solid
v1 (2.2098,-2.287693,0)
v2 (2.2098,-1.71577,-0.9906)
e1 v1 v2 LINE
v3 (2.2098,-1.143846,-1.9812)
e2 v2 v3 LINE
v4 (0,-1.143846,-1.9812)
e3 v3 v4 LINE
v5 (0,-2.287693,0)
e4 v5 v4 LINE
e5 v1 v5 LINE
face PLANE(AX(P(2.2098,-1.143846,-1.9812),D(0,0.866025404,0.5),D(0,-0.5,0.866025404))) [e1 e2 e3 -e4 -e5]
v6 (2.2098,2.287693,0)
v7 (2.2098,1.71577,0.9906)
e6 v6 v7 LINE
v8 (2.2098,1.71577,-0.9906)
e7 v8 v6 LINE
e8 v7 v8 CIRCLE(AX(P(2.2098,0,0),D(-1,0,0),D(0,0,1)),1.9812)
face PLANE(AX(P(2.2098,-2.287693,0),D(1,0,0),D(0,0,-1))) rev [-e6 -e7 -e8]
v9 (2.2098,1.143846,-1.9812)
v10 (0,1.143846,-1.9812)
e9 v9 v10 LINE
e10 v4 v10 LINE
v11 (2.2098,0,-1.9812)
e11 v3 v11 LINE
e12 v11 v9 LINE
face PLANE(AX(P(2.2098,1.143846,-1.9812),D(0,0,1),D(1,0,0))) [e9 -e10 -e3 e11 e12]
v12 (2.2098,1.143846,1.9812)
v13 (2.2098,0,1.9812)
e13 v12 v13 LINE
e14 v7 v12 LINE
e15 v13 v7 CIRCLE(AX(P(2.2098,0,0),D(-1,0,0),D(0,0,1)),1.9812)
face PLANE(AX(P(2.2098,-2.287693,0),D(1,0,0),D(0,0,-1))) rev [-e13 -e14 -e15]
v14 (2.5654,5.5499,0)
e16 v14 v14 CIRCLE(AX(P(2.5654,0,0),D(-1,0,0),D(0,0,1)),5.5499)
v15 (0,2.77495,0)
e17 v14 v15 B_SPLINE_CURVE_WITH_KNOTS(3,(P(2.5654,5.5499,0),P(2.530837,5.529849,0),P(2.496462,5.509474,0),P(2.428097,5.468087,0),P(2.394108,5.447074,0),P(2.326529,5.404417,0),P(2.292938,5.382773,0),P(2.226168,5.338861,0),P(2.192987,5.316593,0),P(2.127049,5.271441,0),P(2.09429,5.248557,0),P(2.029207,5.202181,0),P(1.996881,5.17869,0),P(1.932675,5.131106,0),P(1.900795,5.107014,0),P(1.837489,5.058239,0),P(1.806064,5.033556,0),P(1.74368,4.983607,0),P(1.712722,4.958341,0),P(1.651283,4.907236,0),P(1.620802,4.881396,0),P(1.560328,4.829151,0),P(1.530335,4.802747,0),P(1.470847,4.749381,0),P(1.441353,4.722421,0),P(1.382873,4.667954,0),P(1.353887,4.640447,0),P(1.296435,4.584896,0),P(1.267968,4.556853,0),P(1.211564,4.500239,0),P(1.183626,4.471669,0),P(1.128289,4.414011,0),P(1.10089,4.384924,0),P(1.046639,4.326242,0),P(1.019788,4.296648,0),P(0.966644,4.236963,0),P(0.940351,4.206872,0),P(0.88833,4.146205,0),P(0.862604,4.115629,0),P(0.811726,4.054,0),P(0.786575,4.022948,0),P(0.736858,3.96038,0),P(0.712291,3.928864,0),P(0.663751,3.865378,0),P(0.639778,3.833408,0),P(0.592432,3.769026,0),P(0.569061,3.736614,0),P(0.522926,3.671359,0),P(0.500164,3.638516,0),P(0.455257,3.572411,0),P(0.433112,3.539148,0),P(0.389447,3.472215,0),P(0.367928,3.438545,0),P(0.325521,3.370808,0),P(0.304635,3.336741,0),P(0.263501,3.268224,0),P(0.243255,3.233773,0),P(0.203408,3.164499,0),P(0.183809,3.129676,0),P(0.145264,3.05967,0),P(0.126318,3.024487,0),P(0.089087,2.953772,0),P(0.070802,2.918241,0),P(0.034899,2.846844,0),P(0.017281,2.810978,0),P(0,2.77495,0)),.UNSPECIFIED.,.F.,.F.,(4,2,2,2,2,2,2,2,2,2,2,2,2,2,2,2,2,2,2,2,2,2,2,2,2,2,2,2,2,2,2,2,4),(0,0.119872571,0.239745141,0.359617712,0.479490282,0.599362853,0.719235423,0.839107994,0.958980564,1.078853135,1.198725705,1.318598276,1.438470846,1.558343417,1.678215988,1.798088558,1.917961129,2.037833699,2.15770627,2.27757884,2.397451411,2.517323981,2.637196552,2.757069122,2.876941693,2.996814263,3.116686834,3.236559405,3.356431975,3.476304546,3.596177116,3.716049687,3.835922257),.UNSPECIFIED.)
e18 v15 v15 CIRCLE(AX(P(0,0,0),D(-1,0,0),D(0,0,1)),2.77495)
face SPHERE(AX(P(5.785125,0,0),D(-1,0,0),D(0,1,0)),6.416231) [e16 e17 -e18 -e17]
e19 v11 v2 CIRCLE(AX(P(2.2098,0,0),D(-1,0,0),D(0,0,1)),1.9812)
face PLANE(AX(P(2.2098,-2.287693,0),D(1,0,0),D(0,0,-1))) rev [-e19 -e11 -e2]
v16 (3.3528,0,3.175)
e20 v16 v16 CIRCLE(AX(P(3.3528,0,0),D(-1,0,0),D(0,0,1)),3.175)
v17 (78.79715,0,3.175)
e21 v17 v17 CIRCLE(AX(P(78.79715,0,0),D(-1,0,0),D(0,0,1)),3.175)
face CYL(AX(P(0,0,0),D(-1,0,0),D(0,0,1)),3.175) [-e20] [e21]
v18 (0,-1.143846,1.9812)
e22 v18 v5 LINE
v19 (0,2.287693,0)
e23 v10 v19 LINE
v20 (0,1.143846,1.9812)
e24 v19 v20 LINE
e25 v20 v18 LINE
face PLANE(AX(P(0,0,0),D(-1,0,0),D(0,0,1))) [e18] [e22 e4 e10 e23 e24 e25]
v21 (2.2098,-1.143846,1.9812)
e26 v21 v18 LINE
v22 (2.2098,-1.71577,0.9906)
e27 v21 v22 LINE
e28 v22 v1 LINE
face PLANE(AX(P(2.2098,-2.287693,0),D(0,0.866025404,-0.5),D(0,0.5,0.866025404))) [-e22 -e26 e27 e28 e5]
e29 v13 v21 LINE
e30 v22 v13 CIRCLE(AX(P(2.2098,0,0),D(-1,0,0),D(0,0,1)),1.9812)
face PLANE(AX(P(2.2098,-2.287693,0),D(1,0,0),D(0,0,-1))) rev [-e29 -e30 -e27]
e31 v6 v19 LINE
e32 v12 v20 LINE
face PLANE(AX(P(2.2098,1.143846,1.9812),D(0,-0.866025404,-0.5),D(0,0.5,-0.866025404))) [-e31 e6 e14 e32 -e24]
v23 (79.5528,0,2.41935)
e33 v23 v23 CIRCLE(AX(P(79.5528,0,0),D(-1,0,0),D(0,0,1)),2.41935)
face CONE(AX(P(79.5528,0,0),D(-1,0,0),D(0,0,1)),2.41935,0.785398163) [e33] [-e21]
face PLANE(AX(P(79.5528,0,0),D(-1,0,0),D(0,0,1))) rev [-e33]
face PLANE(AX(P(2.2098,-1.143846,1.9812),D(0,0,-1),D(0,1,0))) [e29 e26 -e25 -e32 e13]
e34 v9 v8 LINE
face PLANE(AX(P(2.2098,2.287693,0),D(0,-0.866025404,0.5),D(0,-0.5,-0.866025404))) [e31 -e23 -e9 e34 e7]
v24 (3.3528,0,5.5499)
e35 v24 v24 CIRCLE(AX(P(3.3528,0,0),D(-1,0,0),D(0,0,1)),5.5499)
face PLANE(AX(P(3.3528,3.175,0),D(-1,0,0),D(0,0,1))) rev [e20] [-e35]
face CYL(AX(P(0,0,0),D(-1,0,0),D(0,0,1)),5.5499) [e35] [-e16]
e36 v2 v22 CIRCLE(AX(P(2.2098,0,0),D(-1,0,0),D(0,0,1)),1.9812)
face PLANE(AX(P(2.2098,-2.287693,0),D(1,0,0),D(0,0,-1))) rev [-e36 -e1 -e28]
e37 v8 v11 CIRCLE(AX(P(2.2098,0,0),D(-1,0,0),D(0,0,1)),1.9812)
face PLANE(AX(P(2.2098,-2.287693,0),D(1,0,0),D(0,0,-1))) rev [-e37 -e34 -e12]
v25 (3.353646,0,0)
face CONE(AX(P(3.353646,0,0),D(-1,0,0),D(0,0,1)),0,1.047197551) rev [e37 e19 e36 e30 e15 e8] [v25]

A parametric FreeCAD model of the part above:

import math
import FreeCAD as App
import Part
import Sketcher
Q = App.Units.Quantity

doc = App.newDocument("Part")
body = doc.addObject("PartDesign::Body", "Body")

# Sketch on XY plane
sketch1 = doc.addObject("Sketcher::SketchObject", "Sketch")
body.addObject(sketch1)
sketch1.AttachmentSupport = (doc.XY_Plane, [""])
sketch1.MapMode = "FlatFace"
sketch1.addGeometry([
    Part.LineSegment(App.Vector(79.6, 0, 0), App.Vector(79.6, 2.4, 0)),  # 0
    Part.LineSegment(App.Vector(79.6, 2.4, 0), App.Vector(78.8, 3.2, 0)),  # 1
    Part.LineSegment(App.Vector(78.8, 3.2, 0), App.Vector(3.4, 3.2, 0)),  # 2
    Part.LineSegment(App.Vector(3.4, 3.2, 0), App.Vector(3.4, 5.5, 0)),  # 3
    Part.LineSegment(App.Vector(3.4, 5.5, 0), App.Vector(2.6, 5.5, 0)),  # 4
    Part.ArcOfCircle(Part.Circle(App.Vector(5.8, 0, 0), App.Vector(0, 0, 1), 6.4), math.radians(120), math.radians(154)),  # 5
    Part.LineSegment(App.Vector(0, 2.8, 0), App.Vector(0, 0, 0)),  # 6
    Part.LineSegment(App.Vector(0, 0, 0), App.Vector(79.6, 0, 0)),  # 7
], False)
sketch1.addConstraint([
    Sketcher.Constraint("Coincident", 0, 2, 1, 1),
    Sketcher.Constraint("Coincident", 1, 2, 2, 1),
    Sketcher.Constraint("Coincident", 2, 2, 3, 1),
    Sketcher.Constraint("Coincident", 3, 2, 4, 1),
    Sketcher.Constraint("Coincident", 4, 2, 5, 1),
    Sketcher.Constraint("Coincident", 5, 2, 6, 1),
    Sketcher.Constraint("Coincident", 6, 2, 7, 1),
    Sketcher.Constraint("Coincident", 7, 2, 0, 1),
    Sketcher.Constraint("Vertical", 0),
    Sketcher.Constraint("Horizontal", 2),
    Sketcher.Constraint("Vertical", 3),
    Sketcher.Constraint("Horizontal", 4),
    Sketcher.Constraint("Vertical", 6),
    Sketcher.Constraint("Horizontal", 7),
    Sketcher.Constraint("Coincident", 6, 2, -1, 1),
    Sketcher.Constraint("PointOnObject", 5, 3, -1),
    Sketcher.Constraint("Angle", 1, Q("135 deg")),
    Sketcher.Constraint("DistanceX", 2, 2, 0, 2, Q("3 in")),
    Sketcher.Constraint("DistanceX", 4, 2, 4, 1, Q("0.031 in")),
    Sketcher.Constraint("DistanceX", 7, 1, 7, 2, Q("3.132 in")),
    Sketcher.Constraint("DistanceY", 3, 1, 3, 2, Q("0.0935 in")),
    Sketcher.Constraint("DistanceY", -1, 1, 1, 2, Q("0.125 in")),
    Sketcher.Constraint("Radius", 5, Q("6.416231 mm")),
    Sketcher.Constraint("DistanceX", 2, 2, 2, 1, Q("75.44435 mm")),
])
revolution = doc.addObject("PartDesign::Revolution", "Revolution")
body.addObject(revolution)
revolution.Profile = sketch1
revolution.ReferenceAxis = (sketch1, ["H_Axis"])
revolution.Angle = 360

# Sketch on XY plane
sketch2 = doc.addObject("Sketcher::SketchObject", "Sketch001")
body.addObject(sketch2)
sketch2.AttachmentSupport = (doc.XY_Plane, [""])
sketch2.MapMode = "FlatFace"
sketch2.addGeometry([
    Part.LineSegment(App.Vector(2.2, 2, 0), App.Vector(0, 2, 0)),
    Part.LineSegment(App.Vector(0, 2, 0), App.Vector(0, 0, 0)),
    Part.LineSegment(App.Vector(0, 0, 0), App.Vector(3.4, 0, 0)),
    Part.LineSegment(App.Vector(3.4, 0, 0), App.Vector(2.2, 2, 0)),
], False)
sketch2.addConstraint([
    Sketcher.Constraint("Coincident", 0, 2, 1, 1),
    Sketcher.Constraint("Coincident", 1, 2, 2, 1),
    Sketcher.Constraint("Coincident", 2, 2, 3, 1),
    Sketcher.Constraint("Coincident", 3, 2, 0, 1),
    Sketcher.Constraint("Horizontal", 0),
    Sketcher.Constraint("Vertical", 1),
    Sketcher.Constraint("Horizontal", 2),
    Sketcher.Constraint("Coincident", 1, 2, -1, 1),
    Sketcher.Constraint("Angle", 3, Q("120 deg")),
    Sketcher.Constraint("DistanceX", 0, 2, 0, 1, Q("0.087 in")),
    Sketcher.Constraint("DistanceY", 1, 2, 1, 1, Q("0.078 in")),
])
groove = doc.addObject("PartDesign::Groove", "Groove")
body.addObject(groove)
groove.Profile = sketch2
groove.ReferenceAxis = (sketch2, ["H_Axis"])
groove.Angle = 360

# Sketch on YZ plane
sketch3 = doc.addObject("Sketcher::SketchObject", "Sketch002")
body.addObject(sketch3)
sketch3.AttachmentSupport = (doc.YZ_Plane, [""])
sketch3.MapMode = "FlatFace"
sketch3.addGeometry([
    Part.LineSegment(App.Vector(1.1, 2, 0), App.Vector(-1.1, 2, 0)),  # 0
    Part.LineSegment(App.Vector(-1.1, 2, 0), App.Vector(-2.3, 0, 0)),  # 1
    Part.LineSegment(App.Vector(-2.3, 0, 0), App.Vector(-1.1, -2, 0)),  # 2
    Part.LineSegment(App.Vector(-1.1, -2, 0), App.Vector(1.1, -2, 0)),  # 3
    Part.LineSegment(App.Vector(1.1, -2, 0), App.Vector(2.3, 0, 0)),  # 4
    Part.LineSegment(App.Vector(2.3, 0, 0), App.Vector(1.1, 2, 0)),  # 5
], False)
sketch3.addConstraint([
    Sketcher.Constraint("Coincident", 0, 2, 1, 1),
    Sketcher.Constraint("Coincident", 1, 2, 2, 1),
    Sketcher.Constraint("Coincident", 2, 2, 3, 1),
    Sketcher.Constraint("Coincident", 3, 2, 4, 1),
    Sketcher.Constraint("Coincident", 4, 2, 5, 1),
    Sketcher.Constraint("Coincident", 5, 2, 0, 1),
    Sketcher.Constraint("Horizontal", 0),
    Sketcher.Constraint("Horizontal", 3),
    Sketcher.Constraint("Symmetric", 0, 2, 3, 2, -1, 1),
    Sketcher.Constraint("Symmetric", 1, 2, 4, 2, -1, 1),
    Sketcher.Constraint("PointOnObject", 1, 2, -1),
    Sketcher.Constraint("Parallel", 2, 5),
    Sketcher.Constraint("Vertical", 0, 2, 2, 2),
    Sketcher.Constraint("Angle", 1, Q("-120 deg")),
    Sketcher.Constraint("DistanceY", -1, 1, 0, 2, Q("0.078 in")),
    Sketcher.Constraint("DistanceX", 1, 2, 3, 2, Q("0.1351 in")),
])
pocket1 = doc.addObject("PartDesign::Pocket", "Pocket")
body.addObject(pocket1)
pocket1.Profile = sketch3
pocket1.Length = Q("0.087 in")
pocket1.Reversed = True

doc.recompute()
